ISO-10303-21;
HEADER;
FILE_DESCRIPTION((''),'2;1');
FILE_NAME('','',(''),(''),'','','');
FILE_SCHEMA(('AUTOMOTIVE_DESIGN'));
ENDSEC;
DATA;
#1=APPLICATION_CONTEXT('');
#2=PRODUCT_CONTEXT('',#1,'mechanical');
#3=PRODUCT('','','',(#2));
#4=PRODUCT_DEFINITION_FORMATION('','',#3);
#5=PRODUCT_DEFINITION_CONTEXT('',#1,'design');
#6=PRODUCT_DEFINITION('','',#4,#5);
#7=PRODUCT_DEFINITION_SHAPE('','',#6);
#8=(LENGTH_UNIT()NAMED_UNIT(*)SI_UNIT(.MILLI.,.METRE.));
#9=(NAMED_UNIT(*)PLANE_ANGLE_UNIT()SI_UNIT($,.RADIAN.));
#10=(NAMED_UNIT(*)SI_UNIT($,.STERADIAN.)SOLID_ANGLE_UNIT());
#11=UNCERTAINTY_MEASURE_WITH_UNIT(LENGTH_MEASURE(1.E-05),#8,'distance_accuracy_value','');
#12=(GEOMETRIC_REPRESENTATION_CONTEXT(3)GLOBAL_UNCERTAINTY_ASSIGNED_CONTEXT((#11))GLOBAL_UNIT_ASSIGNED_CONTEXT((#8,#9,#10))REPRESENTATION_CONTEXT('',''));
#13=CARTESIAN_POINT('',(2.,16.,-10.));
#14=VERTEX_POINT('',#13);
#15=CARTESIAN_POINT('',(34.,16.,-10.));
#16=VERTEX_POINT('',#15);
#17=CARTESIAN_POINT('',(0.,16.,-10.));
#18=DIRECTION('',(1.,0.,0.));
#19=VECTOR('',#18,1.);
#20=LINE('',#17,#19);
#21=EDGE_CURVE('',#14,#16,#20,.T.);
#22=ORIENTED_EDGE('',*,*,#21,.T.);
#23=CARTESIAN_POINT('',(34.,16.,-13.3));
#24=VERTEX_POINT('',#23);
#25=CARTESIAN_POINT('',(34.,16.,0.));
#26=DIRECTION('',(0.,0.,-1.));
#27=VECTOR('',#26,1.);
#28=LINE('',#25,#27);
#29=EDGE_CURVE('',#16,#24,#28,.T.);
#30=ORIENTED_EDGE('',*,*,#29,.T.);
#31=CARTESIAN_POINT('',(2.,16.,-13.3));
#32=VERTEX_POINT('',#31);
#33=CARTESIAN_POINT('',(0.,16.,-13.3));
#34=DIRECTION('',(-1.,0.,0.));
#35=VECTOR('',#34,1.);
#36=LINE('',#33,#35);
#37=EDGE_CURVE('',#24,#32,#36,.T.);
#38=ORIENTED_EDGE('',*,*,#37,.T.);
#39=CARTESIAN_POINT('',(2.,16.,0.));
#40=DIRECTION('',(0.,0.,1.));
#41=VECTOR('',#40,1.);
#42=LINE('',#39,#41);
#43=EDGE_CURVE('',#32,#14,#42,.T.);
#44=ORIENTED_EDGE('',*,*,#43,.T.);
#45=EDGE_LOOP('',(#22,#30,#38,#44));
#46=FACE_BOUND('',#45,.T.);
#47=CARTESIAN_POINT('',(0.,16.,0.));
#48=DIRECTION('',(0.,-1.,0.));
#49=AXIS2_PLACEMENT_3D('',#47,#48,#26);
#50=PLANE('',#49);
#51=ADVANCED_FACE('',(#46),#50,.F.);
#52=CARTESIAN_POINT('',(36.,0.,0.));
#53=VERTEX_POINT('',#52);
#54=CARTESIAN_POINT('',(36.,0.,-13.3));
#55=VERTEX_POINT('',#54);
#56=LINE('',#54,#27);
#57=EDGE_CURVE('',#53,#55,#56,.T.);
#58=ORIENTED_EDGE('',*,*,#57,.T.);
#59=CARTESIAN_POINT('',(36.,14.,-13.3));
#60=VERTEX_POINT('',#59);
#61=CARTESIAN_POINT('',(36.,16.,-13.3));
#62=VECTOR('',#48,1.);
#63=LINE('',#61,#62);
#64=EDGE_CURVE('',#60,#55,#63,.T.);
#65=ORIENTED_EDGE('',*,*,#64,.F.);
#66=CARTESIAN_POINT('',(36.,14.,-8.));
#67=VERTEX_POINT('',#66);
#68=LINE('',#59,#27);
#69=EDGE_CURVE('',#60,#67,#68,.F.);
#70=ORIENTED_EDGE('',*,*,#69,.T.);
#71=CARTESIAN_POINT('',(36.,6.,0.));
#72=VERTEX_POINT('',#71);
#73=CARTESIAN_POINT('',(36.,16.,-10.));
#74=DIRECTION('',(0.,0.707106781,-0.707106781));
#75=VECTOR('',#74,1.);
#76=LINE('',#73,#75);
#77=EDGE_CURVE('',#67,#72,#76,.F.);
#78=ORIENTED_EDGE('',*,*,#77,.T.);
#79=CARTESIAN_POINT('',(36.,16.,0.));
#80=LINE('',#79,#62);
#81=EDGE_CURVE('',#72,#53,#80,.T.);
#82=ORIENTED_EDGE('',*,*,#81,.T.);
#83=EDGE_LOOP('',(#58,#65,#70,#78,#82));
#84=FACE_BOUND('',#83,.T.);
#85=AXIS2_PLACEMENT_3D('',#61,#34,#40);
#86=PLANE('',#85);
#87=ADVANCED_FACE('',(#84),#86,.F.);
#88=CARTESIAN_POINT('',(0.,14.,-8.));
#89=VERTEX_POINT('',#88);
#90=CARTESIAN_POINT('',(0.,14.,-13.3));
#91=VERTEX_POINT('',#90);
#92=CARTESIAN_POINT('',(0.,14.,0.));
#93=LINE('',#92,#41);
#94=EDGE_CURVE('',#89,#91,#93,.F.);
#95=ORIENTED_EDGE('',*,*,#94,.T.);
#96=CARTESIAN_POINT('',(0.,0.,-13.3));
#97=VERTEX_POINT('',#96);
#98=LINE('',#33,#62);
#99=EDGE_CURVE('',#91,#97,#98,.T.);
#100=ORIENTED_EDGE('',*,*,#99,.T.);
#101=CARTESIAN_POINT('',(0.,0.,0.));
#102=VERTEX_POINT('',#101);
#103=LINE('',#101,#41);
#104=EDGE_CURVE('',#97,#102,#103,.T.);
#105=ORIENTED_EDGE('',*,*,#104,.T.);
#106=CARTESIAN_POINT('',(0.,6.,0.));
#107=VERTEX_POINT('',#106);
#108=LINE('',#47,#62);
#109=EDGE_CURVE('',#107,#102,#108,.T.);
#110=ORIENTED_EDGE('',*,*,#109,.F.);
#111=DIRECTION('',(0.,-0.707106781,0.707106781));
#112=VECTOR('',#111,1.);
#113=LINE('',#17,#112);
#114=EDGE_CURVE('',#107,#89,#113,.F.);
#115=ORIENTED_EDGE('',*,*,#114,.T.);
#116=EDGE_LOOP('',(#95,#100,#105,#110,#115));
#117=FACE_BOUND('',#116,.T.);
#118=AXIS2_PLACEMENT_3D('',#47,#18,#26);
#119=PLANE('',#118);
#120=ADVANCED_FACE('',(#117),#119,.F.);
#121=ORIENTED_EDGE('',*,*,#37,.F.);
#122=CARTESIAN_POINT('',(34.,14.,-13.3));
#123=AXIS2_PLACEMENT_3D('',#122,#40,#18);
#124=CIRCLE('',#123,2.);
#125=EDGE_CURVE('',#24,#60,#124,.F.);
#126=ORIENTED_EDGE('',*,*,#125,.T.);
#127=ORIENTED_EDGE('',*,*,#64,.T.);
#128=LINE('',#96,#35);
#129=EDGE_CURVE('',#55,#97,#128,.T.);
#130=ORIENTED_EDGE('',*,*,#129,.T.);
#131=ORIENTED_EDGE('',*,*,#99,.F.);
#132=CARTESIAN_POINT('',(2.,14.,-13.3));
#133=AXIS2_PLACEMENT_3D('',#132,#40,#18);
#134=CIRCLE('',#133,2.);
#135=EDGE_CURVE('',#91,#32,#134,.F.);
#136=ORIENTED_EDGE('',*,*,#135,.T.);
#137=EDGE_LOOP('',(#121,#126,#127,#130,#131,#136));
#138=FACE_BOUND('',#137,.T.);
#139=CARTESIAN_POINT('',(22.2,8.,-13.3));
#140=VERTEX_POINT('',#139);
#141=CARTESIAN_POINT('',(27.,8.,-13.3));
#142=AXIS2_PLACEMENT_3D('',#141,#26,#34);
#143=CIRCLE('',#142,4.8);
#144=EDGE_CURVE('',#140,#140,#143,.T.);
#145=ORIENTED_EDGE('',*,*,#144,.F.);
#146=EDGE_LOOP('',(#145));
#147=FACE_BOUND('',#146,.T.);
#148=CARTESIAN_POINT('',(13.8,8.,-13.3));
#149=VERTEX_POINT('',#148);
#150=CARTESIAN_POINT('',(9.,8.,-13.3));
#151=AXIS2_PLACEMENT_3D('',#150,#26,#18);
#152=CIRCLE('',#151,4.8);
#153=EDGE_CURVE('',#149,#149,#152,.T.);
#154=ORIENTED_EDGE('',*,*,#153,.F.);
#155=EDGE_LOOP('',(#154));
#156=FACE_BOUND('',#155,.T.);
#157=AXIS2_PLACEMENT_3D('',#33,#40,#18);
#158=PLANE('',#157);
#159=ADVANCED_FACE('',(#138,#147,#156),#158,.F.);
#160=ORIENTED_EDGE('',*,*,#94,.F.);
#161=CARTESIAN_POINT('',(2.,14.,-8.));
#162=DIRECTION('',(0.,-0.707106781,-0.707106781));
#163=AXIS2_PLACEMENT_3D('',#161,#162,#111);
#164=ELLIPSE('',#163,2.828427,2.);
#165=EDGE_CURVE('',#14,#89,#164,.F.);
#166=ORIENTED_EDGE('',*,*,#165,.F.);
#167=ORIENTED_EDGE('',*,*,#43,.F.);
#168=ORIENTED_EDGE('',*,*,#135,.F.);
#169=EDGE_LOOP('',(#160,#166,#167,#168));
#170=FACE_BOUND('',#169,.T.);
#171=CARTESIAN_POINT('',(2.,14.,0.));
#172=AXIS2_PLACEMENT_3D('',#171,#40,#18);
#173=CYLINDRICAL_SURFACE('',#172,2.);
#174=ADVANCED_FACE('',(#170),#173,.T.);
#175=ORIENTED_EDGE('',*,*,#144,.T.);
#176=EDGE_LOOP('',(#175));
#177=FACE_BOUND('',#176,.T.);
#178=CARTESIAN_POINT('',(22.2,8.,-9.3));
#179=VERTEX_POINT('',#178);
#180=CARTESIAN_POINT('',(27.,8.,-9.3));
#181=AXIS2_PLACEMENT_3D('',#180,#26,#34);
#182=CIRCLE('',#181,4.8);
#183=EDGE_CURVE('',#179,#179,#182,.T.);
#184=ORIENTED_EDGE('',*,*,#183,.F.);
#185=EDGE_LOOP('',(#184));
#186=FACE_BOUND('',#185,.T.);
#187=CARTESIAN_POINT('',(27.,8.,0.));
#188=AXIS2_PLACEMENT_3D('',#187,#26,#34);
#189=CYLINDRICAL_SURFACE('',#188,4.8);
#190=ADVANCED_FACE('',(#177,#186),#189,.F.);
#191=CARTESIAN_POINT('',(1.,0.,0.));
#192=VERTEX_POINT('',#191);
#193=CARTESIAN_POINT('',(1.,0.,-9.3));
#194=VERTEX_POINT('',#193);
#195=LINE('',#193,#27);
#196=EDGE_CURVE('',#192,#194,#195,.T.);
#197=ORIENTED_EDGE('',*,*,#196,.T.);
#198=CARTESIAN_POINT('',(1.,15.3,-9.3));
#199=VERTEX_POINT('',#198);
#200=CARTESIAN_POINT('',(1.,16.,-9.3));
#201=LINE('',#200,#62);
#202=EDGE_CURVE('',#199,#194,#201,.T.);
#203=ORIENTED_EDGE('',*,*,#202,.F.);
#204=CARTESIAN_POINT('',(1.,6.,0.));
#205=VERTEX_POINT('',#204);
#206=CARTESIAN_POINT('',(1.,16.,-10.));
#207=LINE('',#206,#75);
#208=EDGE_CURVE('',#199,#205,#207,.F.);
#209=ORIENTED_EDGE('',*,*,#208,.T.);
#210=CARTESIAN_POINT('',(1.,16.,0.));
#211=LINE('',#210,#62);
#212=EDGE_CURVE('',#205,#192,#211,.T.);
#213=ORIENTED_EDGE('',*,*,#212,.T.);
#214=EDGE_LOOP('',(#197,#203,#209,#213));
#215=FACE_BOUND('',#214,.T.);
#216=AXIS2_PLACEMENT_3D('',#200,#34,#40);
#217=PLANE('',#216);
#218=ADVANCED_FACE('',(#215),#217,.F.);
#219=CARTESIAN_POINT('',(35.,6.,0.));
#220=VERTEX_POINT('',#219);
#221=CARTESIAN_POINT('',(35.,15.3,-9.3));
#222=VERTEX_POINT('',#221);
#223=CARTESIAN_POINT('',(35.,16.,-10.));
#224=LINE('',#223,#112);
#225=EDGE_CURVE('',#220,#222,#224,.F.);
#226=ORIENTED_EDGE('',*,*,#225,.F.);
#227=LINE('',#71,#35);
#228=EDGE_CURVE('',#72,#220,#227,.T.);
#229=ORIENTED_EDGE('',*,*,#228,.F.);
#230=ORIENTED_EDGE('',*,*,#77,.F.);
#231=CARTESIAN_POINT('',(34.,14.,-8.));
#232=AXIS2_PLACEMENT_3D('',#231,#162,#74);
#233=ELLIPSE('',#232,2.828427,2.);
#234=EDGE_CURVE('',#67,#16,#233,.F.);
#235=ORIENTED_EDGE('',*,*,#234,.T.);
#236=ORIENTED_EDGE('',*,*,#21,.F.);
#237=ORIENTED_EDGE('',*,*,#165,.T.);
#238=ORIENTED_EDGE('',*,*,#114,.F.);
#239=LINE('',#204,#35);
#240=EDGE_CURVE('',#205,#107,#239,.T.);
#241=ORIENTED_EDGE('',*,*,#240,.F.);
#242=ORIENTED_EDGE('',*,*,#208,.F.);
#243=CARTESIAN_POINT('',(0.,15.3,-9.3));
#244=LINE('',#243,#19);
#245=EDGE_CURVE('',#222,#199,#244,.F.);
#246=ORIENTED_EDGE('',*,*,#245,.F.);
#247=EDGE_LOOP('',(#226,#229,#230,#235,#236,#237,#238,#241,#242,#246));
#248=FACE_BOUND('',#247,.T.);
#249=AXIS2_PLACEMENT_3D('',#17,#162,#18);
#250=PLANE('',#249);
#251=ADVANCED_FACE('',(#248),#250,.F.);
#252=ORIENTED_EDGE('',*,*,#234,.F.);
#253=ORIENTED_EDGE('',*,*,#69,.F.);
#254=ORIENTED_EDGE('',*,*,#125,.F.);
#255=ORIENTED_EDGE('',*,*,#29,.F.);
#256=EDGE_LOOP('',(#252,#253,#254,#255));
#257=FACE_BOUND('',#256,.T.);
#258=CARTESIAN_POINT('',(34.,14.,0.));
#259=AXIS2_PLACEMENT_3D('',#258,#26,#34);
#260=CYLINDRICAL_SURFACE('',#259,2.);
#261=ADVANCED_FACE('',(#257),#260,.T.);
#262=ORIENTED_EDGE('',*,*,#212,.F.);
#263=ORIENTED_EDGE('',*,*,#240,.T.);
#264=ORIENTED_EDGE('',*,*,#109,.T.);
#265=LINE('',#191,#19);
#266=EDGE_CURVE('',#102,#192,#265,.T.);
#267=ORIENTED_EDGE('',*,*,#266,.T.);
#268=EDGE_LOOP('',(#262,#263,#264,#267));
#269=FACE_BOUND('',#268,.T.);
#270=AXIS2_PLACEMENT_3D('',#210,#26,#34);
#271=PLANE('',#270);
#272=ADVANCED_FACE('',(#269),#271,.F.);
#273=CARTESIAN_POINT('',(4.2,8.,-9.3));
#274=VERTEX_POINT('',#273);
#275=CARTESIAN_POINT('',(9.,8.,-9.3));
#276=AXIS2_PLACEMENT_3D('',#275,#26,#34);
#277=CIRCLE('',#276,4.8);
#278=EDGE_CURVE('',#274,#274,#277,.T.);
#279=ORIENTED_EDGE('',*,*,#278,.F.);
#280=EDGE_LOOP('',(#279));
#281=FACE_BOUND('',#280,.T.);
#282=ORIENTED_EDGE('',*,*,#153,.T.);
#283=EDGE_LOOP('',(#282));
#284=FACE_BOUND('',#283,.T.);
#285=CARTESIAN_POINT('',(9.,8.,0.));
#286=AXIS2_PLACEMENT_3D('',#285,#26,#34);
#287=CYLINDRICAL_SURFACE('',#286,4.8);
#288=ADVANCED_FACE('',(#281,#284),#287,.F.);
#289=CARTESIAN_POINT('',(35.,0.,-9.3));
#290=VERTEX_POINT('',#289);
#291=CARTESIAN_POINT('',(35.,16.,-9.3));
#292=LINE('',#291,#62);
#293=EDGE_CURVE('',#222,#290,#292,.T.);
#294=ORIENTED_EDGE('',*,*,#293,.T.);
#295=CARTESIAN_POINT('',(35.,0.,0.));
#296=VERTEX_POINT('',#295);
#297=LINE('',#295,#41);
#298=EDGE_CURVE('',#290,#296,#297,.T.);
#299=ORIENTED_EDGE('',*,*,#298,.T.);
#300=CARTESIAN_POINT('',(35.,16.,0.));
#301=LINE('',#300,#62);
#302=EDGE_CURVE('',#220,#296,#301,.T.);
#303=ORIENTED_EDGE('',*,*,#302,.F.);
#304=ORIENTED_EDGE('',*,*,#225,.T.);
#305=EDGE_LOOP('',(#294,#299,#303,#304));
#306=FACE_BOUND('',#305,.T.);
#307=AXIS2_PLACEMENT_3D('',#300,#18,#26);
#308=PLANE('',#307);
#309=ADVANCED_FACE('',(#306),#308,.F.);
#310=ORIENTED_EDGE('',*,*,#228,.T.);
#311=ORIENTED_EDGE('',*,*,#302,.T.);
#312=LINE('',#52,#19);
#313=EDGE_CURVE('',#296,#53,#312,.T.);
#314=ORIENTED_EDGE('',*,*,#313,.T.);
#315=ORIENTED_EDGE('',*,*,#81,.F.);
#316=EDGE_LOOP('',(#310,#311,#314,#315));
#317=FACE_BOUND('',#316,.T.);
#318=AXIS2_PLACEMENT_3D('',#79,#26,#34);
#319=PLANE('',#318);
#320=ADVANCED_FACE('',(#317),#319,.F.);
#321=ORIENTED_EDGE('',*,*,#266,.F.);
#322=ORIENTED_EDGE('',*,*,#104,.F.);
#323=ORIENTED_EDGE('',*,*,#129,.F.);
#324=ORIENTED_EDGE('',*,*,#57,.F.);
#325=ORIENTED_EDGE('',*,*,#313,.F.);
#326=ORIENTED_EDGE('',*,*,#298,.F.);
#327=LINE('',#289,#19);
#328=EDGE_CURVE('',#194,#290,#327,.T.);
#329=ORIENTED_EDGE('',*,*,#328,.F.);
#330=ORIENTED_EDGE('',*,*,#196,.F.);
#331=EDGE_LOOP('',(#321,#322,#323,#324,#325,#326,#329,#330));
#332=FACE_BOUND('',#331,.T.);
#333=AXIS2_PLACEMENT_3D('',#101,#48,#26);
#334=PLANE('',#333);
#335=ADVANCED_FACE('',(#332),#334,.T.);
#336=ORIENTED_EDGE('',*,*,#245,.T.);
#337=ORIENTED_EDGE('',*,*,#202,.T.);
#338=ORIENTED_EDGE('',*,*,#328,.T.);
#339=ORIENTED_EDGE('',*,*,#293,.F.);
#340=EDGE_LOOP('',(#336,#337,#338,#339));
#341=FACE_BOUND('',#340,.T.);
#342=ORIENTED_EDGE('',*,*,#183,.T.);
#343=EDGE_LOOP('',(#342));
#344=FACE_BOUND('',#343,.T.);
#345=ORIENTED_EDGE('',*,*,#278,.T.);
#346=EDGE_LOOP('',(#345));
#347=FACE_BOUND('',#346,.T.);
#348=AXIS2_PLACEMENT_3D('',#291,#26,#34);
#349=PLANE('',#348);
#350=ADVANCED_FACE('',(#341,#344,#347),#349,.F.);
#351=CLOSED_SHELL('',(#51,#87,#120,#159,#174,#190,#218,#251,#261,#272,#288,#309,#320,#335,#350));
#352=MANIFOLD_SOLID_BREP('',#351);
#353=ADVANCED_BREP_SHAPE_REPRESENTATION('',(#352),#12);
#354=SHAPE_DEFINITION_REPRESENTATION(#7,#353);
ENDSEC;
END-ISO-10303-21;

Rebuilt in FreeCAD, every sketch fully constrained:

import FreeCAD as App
import Part
import Sketcher
from FreeCAD import Vector
Q = App.Units.Quantity


def edges_at(feature, points):
    """Names of the edges that pass closest to the given points."""
    edges = feature.Shape.Edges
    near = lambda p: min(range(len(edges)), key=lambda i: edges[i].distToShape(Part.Vertex(*p))[0])
    return sorted({f"Edge{near(p) + 1}" for p in points})

doc = App.newDocument("Part")
body = doc.addObject("PartDesign::Body", "Body")

sketch1 = body.newObject("Sketcher::SketchObject", "Sketch")
sketch1.AttachmentSupport = (doc.getObject("XZ_Plane"), [""])
sketch1.MapMode = "FlatFace"
sketch1.addGeometry(Part.LineSegment(Vector(0, -13.3, 0), Vector(0, 0, 0)), False)
sketch1.addGeometry(Part.LineSegment(Vector(0, 0, 0), Vector(1, 0, 0)), False)
sketch1.addGeometry(Part.LineSegment(Vector(1, 0, 0), Vector(1, -9.3, 0)), False)
sketch1.addGeometry(Part.LineSegment(Vector(1, -9.3, 0), Vector(35, -9.3, 0)), False)
sketch1.addGeometry(Part.LineSegment(Vector(35, -9.3, 0), Vector(35, 0, 0)), False)
sketch1.addGeometry(Part.LineSegment(Vector(35, 0, 0), Vector(36, 0, 0)), False)
sketch1.addGeometry(Part.LineSegment(Vector(36, 0, 0), Vector(36, -13.3, 0)), False)
sketch1.addGeometry(Part.LineSegment(Vector(36, -13.3, 0), Vector(0, -13.3, 0)), False)
sketch1.addConstraint(Sketcher.Constraint("Coincident", 0, 2, 1, 1))
sketch1.addConstraint(Sketcher.Constraint("Coincident", 1, 2, 2, 1))
sketch1.addConstraint(Sketcher.Constraint("Coincident", 2, 2, 3, 1))
sketch1.addConstraint(Sketcher.Constraint("Coincident", 3, 2, 4, 1))
sketch1.addConstraint(Sketcher.Constraint("Coincident", 4, 2, 5, 1))
sketch1.addConstraint(Sketcher.Constraint("Coincident", 5, 2, 6, 1))
sketch1.addConstraint(Sketcher.Constraint("Coincident", 6, 2, 7, 1))
sketch1.addConstraint(Sketcher.Constraint("Coincident", 7, 2, 0, 1))
sketch1.addConstraint(Sketcher.Constraint("Vertical", 0))
sketch1.addConstraint(Sketcher.Constraint("Horizontal", 1))
sketch1.addConstraint(Sketcher.Constraint("Vertical", 2))
sketch1.addConstraint(Sketcher.Constraint("Horizontal", 3))
sketch1.addConstraint(Sketcher.Constraint("Vertical", 4))
sketch1.addConstraint(Sketcher.Constraint("Horizontal", 5))
sketch1.addConstraint(Sketcher.Constraint("Vertical", 6))
sketch1.addConstraint(Sketcher.Constraint("Horizontal", 7))
sketch1.addConstraint(Sketcher.Constraint("Coincident", 0, 2, -1, 1))
sketch1.addConstraint(Sketcher.Constraint("PointOnObject", 4, 2, -1))
sketch1.addConstraint(Sketcher.Constraint("Equal", 1, 5))
sketch1.addConstraint(Sketcher.Constraint("DistanceX", 1, 1, 1, 2, Q("1 mm")))
sketch1.addConstraint(Sketcher.Constraint("DistanceX", 3, 1, 3, 2, Q("34 mm")))
sketch1.addConstraint(Sketcher.Constraint("DistanceY", 0, 1, 0, 2, Q("13.3 mm")))
sketch1.addConstraint(Sketcher.Constraint("DistanceY", 2, 2, 2, 1, Q("9.3 mm")))
pad1 = body.newObject("PartDesign::Pad", "Pad")
pad1.Profile = sketch1
pad1.Length = 16
pad1.Reversed = True
doc.recompute()

chamfer = body.newObject("PartDesign::Chamfer", "Chamfer")
chamfer.Base = (pad1, edges_at(pad1, [(0.5, 16, 0)]))
chamfer.Size = 10
doc.recompute()

fillet = body.newObject("PartDesign::Fillet", "Fillet")
fillet.Base = (chamfer, edges_at(chamfer, [(36, 16, -11.65), (0, 16, -11.65)]))
fillet.Radius = 2

sketch2 = body.newObject("Sketcher::SketchObject", "Sketch001")
sketch2.AttachmentSupport = (doc.getObject("XY_Plane"), [""])
sketch2.MapMode = "FlatFace"
sketch2.AttachmentOffset = App.Placement(Vector(0, 0, -13.3), App.Rotation())
sketch2.addGeometry(Part.Circle(Vector(27, 8, 0), Vector(0, 0, 1), 4.8), False)
sketch2.addGeometry(Part.Circle(Vector(9, 8, 0), Vector(0, 0, 1), 4.8), False)
sketch2.addConstraint(Sketcher.Constraint("Equal", 0, 1))
sketch2.addConstraint(Sketcher.Constraint("Horizontal", 0, 3, 1, 3))
sketch2.addConstraint(Sketcher.Constraint("Diameter", 0, Q("9.6 mm")))
sketch2.addConstraint(Sketcher.Constraint("DistanceX", -1, 1, 0, 3, Q("27 mm")))
sketch2.addConstraint(Sketcher.Constraint("DistanceY", -1, 1, 0, 3, Q("8 mm")))
sketch2.addConstraint(Sketcher.Constraint("DistanceX", -1, 1, 1, 3, Q("9 mm")))
pocket1 = body.newObject("PartDesign::Pocket", "Pocket")
pocket1.Profile = sketch2
pocket1.Type = "ThroughAll"
pocket1.Reversed = True

doc.recompute()
